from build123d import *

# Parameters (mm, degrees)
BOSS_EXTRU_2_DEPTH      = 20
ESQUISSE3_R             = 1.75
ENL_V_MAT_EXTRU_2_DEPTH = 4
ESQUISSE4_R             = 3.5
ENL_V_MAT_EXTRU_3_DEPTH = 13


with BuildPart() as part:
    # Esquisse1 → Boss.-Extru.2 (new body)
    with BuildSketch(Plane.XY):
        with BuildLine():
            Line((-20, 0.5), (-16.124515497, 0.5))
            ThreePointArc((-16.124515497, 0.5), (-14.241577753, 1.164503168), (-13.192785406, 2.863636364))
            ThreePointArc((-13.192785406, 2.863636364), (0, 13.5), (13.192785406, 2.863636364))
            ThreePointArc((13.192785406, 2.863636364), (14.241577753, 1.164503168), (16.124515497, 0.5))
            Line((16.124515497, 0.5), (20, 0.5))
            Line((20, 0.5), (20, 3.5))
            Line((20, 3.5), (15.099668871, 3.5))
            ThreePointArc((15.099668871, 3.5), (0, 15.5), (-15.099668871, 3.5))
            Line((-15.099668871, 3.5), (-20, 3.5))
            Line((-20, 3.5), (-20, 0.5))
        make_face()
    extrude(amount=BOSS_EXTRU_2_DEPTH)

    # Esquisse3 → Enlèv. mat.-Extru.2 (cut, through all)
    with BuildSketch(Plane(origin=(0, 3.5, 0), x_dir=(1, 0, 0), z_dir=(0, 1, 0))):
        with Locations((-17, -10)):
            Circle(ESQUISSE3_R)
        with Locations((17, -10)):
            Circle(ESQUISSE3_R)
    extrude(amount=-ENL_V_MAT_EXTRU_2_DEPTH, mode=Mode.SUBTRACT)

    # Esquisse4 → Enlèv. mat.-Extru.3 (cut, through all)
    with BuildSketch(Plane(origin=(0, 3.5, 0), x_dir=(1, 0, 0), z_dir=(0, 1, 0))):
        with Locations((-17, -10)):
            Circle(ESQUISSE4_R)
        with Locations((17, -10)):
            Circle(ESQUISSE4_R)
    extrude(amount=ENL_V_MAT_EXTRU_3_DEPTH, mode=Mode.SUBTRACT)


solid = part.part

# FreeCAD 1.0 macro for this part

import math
import FreeCAD as App
import Part
import Sketcher

doc = App.newDocument("Part")
body = doc.addObject("PartDesign::Body", "Body")

sketch1 = body.newObject("Sketcher::SketchObject", "Sketch")
sketch1.AttachmentSupport = (doc.getObject("XY_Plane"), [""])
sketch1.MapMode = "FlatFace"
sketch1.addGeometry([
    Part.LineSegment(App.Vector(-20, 0.5, 0), App.Vector(-16.124515, 0.5, 0)),
    Part.ArcOfCircle(Part.Circle(App.Vector(-16.124515, 3.5, 0), App.Vector(0, 0, 1), 3), math.radians(-90), math.radians(-12.24669)),
    Part.ArcOfCircle(Part.Circle(App.Vector(0, 0, 0), App.Vector(0, 0, 1), 13.5), math.radians(12.24669), math.radians(167.75331)),
    Part.ArcOfCircle(Part.Circle(App.Vector(16.124515, 3.5, 0), App.Vector(0, 0, 1), 3), math.radians(-167.75331), math.radians(-90)),
    Part.LineSegment(App.Vector(16.124515, 0.5, 0), App.Vector(20, 0.5, 0)),
    Part.LineSegment(App.Vector(20, 0.5, 0), App.Vector(20, 3.5, 0)),
    Part.LineSegment(App.Vector(20, 3.5, 0), App.Vector(15.099669, 3.5, 0)),
    Part.ArcOfCircle(Part.Circle(App.Vector(0, 0, 0), App.Vector(0, 0, 1), 15.5), math.radians(13.050305), math.radians(166.949695)),
    Part.LineSegment(App.Vector(-15.099669, 3.5, 0), App.Vector(-20, 3.5, 0)),
    Part.LineSegment(App.Vector(-20, 3.5, 0), App.Vector(-20, 0.5, 0)),
], False)
sketch1.addConstraint([
    Sketcher.Constraint("Tangent", 0, 2, 1, 1),
    Sketcher.Constraint("Tangent", 1, 2, 2, 2),
    Sketcher.Constraint("Tangent", 2, 1, 3, 1),
    Sketcher.Constraint("Tangent", 3, 2, 4, 1),
    Sketcher.Constraint("Coincident", 4, 2, 5, 1),
    Sketcher.Constraint("Coincident", 5, 2, 6, 1),
    Sketcher.Constraint("Coincident", 6, 2, 7, 1),
    Sketcher.Constraint("Coincident", 7, 2, 8, 1),
    Sketcher.Constraint("Coincident", 8, 2, 9, 1),
    Sketcher.Constraint("Coincident", 9, 2, 0, 1),
    Sketcher.Constraint("Horizontal", 0),
    Sketcher.Constraint("Horizontal", 4),
    Sketcher.Constraint("Vertical", 5),
    Sketcher.Constraint("Horizontal", 6),
    Sketcher.Constraint("Horizontal", 8),
    Sketcher.Constraint("Vertical", 9),
    Sketcher.Constraint("Coincident", 2, 3, -1, 1),
    Sketcher.Constraint("Coincident", 7, 3, -1, 1),
    Sketcher.Constraint("Equal", 1, 3),
    Sketcher.Constraint("Symmetric", 5, 2, 8, 2, -2),
    Sketcher.Constraint("Horizontal", 1, 3, 3, 3),
    Sketcher.Constraint("Horizontal", 3, 3, 5, 2),
    Sketcher.Constraint("Radius", 1, 3.0),
    Sketcher.Constraint("Radius", 2, 13.5),
    Sketcher.Constraint("Radius", 7, 15.5),
    Sketcher.Constraint("DistanceX", -1, 1, 4, 2, 20.0),
    Sketcher.Constraint("DistanceY", -1, 1, 1, 3, 3.5),
])
pad1 = body.newObject("PartDesign::Pad", "Pad")
pad1.Profile = sketch1
pad1.Length = 20

sketch2 = body.newObject("Sketcher::SketchObject", "Sketch001")
sketch2.AttachmentSupport = (doc.getObject("XZ_Plane"), [""])
sketch2.MapMode = "FlatFace"
sketch2.AttachmentOffset = App.Placement(App.Vector(0, 0, -3.5), App.Rotation())
sketch2.addGeometry([
    Part.Circle(App.Vector(-17, 10, 0), App.Vector(0, 0, 1), 1.75),
    Part.Circle(App.Vector(17, 10, 0), App.Vector(0, 0, 1), 1.75),
], False)
sketch2.addConstraint([
    Sketcher.Constraint("Equal", 0, 1),
    Sketcher.Constraint("Symmetric", 0, 3, 1, 3, -2),
    Sketcher.Constraint("Diameter", 0, 3.5),
    Sketcher.Constraint("DistanceX", 0, 3, -1, 1, 17.0),
    Sketcher.Constraint("DistanceY", -1, 1, 0, 3, 10.0),
])
pocket1 = body.newObject("PartDesign::Pocket", "Pocket")
pocket1.Profile = sketch2
pocket1.Type = "ThroughAll"
pocket1.Reversed = True

sketch3 = body.newObject("Sketcher::SketchObject", "Sketch002")
sketch3.AttachmentSupport = (doc.getObject("XZ_Plane"), [""])
sketch3.MapMode = "FlatFace"
sketch3.AttachmentOffset = App.Placement(App.Vector(0, 0, -3.5), App.Rotation())
sketch3.addGeometry([
    Part.Circle(App.Vector(-17, 10, 0), App.Vector(0, 0, 1), 3.5),
    Part.Circle(App.Vector(17, 10, 0), App.Vector(0, 0, 1), 3.5),
], False)
sketch3.addConstraint([
    Sketcher.Constraint("Equal", 0, 1),
    Sketcher.Constraint("Symmetric", 0, 3, 1, 3, -2),
    Sketcher.Constraint("Diameter", 0, 7.0),
    Sketcher.Constraint("DistanceX", 0, 3, -1, 1, 17.0),
    Sketcher.Constraint("DistanceY", -1, 1, 0, 3, 10.0),
])
pocket2 = body.newObject("PartDesign::Pocket", "Pocket001")
pocket2.Profile = sketch3
pocket2.Type = "ThroughAll"

doc.recompute()
